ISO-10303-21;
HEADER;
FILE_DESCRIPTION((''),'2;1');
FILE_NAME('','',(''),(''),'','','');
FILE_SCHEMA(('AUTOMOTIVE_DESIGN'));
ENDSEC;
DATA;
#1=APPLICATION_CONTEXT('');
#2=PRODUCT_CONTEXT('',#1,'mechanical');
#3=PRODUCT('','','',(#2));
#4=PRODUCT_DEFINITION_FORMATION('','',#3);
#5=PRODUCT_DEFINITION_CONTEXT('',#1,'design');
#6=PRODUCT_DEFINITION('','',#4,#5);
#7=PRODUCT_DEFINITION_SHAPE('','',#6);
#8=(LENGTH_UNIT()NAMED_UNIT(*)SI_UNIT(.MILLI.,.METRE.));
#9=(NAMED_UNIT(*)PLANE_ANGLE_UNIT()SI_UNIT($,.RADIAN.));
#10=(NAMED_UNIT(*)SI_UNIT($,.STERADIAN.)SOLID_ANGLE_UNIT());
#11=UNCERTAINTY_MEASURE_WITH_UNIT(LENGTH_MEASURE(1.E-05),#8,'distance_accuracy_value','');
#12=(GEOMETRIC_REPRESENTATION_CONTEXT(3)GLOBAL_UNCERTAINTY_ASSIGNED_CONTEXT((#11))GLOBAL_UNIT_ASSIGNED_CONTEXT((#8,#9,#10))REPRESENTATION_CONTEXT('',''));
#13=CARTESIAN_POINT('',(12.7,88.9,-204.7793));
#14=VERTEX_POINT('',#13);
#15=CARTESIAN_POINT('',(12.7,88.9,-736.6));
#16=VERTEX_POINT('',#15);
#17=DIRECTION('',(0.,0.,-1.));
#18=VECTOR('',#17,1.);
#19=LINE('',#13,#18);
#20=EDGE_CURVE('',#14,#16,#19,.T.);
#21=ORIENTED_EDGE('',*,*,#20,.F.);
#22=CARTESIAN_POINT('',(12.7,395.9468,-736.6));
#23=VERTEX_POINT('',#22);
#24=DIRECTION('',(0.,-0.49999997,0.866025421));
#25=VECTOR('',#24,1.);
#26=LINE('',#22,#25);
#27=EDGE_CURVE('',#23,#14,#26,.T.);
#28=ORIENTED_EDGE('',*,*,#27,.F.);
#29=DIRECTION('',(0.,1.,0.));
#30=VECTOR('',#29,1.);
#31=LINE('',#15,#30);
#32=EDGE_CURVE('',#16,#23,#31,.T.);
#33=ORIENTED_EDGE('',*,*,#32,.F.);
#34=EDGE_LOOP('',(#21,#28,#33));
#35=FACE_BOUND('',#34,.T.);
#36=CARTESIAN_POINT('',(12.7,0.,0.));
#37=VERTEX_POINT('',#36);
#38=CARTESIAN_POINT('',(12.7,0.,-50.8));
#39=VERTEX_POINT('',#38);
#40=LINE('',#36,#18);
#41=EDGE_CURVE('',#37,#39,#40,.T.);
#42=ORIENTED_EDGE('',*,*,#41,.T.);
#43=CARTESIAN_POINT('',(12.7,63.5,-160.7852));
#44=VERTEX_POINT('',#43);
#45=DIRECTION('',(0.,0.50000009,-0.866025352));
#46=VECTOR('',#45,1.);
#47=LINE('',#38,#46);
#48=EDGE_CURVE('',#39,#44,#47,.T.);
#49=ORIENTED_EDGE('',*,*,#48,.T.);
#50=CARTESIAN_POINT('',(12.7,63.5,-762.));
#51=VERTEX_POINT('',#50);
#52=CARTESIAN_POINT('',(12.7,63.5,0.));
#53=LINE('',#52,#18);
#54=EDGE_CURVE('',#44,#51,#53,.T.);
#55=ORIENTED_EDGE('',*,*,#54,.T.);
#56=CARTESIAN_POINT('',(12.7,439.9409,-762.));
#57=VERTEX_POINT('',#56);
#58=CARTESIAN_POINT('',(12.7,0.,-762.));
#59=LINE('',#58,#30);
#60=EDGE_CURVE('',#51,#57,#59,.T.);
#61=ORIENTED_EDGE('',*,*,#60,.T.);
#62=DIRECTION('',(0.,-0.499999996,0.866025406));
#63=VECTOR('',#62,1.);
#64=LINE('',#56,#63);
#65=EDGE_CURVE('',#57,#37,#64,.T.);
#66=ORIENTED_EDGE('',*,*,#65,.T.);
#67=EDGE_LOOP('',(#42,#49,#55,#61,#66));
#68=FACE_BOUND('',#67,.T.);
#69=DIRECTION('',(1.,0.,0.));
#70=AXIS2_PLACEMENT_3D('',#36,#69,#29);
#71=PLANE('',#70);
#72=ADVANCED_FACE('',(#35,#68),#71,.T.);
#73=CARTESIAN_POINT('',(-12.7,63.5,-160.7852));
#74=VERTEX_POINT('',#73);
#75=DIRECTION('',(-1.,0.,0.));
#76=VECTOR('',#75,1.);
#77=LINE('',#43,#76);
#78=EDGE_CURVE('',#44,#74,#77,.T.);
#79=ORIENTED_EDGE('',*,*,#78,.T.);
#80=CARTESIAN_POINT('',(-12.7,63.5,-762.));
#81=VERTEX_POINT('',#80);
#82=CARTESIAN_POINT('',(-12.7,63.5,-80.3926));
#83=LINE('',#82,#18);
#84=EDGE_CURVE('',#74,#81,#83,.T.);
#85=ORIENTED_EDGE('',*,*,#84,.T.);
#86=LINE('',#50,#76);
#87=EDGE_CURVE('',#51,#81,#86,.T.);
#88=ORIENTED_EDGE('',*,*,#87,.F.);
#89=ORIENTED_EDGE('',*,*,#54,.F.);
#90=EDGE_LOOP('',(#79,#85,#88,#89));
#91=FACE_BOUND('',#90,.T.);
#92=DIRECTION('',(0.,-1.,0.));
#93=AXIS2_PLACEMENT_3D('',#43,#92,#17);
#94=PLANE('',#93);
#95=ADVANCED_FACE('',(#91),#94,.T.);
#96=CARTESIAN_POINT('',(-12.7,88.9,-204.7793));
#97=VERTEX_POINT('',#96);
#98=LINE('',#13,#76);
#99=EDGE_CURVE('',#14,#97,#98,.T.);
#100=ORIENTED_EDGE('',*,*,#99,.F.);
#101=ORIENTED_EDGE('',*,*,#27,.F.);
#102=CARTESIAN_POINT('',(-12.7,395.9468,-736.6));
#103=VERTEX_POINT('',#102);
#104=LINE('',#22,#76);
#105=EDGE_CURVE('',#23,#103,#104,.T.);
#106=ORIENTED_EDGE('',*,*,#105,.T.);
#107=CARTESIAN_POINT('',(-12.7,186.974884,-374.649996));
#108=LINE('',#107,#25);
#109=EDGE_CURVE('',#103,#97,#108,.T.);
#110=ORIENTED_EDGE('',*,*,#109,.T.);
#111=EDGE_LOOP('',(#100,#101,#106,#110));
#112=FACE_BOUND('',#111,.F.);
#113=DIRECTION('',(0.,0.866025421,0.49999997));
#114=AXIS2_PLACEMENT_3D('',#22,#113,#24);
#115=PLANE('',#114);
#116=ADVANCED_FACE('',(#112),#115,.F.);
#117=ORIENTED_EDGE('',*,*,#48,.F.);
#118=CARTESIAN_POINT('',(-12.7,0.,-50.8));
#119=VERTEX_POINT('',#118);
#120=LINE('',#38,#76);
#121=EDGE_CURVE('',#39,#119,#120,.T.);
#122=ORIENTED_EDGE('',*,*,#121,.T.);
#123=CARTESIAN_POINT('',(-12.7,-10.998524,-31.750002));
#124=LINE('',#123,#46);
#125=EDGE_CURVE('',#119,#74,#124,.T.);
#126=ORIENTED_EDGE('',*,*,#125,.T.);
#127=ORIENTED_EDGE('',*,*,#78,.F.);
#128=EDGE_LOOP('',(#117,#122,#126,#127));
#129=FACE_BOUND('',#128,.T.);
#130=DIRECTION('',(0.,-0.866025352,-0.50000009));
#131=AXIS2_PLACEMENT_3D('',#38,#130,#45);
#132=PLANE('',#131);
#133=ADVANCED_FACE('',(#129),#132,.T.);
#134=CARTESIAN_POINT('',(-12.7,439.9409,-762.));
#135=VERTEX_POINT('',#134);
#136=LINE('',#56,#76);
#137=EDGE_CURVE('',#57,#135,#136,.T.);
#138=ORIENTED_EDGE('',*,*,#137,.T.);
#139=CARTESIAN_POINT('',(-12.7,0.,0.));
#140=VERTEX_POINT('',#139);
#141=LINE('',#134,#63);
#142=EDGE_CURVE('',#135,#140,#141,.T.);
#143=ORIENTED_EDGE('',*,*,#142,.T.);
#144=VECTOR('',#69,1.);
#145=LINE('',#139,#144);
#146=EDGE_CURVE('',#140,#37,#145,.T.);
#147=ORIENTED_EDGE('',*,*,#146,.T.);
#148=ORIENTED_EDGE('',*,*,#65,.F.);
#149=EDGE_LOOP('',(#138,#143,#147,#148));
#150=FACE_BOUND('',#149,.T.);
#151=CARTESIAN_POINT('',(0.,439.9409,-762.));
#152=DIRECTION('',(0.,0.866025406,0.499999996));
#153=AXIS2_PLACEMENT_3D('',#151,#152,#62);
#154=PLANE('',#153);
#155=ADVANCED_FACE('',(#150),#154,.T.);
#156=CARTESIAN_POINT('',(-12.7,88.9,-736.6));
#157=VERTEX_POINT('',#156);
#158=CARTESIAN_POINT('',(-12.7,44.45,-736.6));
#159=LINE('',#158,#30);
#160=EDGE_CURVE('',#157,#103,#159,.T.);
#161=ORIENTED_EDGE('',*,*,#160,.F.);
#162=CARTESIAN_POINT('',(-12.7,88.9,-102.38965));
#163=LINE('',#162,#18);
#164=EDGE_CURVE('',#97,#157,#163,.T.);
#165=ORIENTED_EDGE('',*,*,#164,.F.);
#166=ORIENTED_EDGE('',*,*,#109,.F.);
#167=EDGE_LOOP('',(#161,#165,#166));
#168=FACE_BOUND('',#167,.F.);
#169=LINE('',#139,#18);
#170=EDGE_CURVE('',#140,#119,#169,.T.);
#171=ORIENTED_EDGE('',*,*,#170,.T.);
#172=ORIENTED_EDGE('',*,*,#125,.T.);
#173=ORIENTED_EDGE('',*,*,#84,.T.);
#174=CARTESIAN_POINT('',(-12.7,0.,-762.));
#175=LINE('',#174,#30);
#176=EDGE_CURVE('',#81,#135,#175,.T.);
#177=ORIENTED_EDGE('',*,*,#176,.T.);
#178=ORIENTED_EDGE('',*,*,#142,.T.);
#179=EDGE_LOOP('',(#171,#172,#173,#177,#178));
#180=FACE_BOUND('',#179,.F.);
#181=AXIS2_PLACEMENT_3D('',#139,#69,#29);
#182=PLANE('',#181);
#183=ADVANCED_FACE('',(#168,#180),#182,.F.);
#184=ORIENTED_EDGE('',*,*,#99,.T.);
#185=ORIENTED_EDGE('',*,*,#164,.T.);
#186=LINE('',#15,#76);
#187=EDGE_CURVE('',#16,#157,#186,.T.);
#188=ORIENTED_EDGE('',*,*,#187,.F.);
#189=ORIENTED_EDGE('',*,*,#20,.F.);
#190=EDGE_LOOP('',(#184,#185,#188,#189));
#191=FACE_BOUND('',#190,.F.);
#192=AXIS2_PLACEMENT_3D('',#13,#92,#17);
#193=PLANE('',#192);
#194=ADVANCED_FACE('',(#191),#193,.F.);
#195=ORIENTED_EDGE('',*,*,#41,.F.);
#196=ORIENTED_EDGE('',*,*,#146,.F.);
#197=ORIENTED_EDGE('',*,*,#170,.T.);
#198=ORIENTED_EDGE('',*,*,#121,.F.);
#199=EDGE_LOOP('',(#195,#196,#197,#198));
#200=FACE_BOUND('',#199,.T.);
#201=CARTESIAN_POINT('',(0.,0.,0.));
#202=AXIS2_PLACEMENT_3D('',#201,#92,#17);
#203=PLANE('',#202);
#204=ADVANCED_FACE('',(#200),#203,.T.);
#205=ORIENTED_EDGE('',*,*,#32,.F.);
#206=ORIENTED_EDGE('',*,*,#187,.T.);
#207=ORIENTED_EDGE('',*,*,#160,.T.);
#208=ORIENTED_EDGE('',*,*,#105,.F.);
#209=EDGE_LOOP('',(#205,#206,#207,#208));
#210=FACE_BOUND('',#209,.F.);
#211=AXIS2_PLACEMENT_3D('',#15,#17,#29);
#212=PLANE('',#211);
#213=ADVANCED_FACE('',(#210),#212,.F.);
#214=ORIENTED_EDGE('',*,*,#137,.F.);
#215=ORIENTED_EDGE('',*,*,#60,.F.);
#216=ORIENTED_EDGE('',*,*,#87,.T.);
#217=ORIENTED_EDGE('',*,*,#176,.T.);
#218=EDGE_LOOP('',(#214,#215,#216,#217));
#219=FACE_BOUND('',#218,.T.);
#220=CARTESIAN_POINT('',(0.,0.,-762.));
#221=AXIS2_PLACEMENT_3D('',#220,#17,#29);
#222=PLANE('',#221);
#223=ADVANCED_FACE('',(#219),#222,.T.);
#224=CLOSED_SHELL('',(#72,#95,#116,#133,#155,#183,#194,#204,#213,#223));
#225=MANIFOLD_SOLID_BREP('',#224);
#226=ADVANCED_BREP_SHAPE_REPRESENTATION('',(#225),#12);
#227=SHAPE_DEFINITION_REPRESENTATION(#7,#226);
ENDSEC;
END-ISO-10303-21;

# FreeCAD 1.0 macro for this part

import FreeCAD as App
import Part
import Sketcher
from FreeCAD import Vector
Q = App.Units.Quantity


def add_polygon(sketch, points):
    """Adds a closed chain of lines whose ends are joined by coincident constraints."""
    first, n = sketch.GeometryCount, len(points)
    for a, b in zip(points, points[1:] + points[:1]):
        sketch.addGeometry(Part.LineSegment(App.Vector(*a, 0), App.Vector(*b, 0)), False)
    for i in range(n):
        sketch.addConstraint(Sketcher.Constraint("Coincident", first + i, 2, first + (i + 1) % n, 1))

doc = App.newDocument("Part")
body = doc.addObject("PartDesign::Body", "Body")

sketch1 = body.newObject("Sketcher::SketchObject", "Sketch")
sketch1.AttachmentSupport = (doc.getObject("YZ_Plane"), [""])
sketch1.MapMode = "FlatFace"
add_polygon(sketch1, [(440, -762), (0, 0), (0, -762)])
sketch1.addConstraint([
    Sketcher.Constraint("Vertical", 1),
    Sketcher.Constraint("Horizontal", 2),
    Sketcher.Constraint("Coincident", 0, 2, -1, 1),
    Sketcher.Constraint("DistanceY", 1, 2, 1, 1, Q("30 in")),
    Sketcher.Constraint("Angle", 0, Q("120 deg")),
])
pad1 = body.newObject("PartDesign::Pad", "Pad")
pad1.Profile = sketch1
pad1.Length = Q("1 in")
pad1.Midplane = True

sketch2 = body.newObject("Sketcher::SketchObject", "Sketch001")
sketch2.AttachmentSupport = (doc.getObject("YZ_Plane"), [""])
sketch2.MapMode = "FlatFace"
sketch2.AttachmentOffset = App.Placement(Vector(0, 0, 0.5 * 25.4), App.Rotation())
add_polygon(sketch2, [(64, -762), (64, -161), (0, -51), (0, -762)])
add_polygon(sketch2, [(396, -737), (89, -205), (89, -737)])
sketch2.addConstraint([
    Sketcher.Constraint("Vertical", 0),
    Sketcher.Constraint("Vertical", 2),
    Sketcher.Constraint("Horizontal", 3),
    Sketcher.Constraint("Vertical", 5),
    Sketcher.Constraint("Horizontal", 6),
    Sketcher.Constraint("PointOnObject", 1, 2, -2),
    Sketcher.Constraint("Parallel", 1, 4),
    Sketcher.Constraint("DistanceX", 0, 2, 4, 2, Q("1 in")),
    Sketcher.Constraint("DistanceY", 3, 2, 5, 2, Q("1 in")),
    Sketcher.Constraint("DistanceY", 2, 2, 2, 1, Q("28 in")),
    Sketcher.Constraint("Distance", 1, Q("5 in")),
    Sketcher.Constraint("DistanceX", 3, 1, 3, 2, Q("2.5 in")),
    Sketcher.Constraint("DistanceY", 1, 2, -1, 1, Q("2 in")),
    Sketcher.Constraint("DistanceX", 6, 1, 6, 2, 307.0468),
])
pocket1 = body.newObject("PartDesign::Pocket", "Pocket")
pocket1.Profile = sketch2
pocket1.Type = "ThroughAll"

doc.recompute()
